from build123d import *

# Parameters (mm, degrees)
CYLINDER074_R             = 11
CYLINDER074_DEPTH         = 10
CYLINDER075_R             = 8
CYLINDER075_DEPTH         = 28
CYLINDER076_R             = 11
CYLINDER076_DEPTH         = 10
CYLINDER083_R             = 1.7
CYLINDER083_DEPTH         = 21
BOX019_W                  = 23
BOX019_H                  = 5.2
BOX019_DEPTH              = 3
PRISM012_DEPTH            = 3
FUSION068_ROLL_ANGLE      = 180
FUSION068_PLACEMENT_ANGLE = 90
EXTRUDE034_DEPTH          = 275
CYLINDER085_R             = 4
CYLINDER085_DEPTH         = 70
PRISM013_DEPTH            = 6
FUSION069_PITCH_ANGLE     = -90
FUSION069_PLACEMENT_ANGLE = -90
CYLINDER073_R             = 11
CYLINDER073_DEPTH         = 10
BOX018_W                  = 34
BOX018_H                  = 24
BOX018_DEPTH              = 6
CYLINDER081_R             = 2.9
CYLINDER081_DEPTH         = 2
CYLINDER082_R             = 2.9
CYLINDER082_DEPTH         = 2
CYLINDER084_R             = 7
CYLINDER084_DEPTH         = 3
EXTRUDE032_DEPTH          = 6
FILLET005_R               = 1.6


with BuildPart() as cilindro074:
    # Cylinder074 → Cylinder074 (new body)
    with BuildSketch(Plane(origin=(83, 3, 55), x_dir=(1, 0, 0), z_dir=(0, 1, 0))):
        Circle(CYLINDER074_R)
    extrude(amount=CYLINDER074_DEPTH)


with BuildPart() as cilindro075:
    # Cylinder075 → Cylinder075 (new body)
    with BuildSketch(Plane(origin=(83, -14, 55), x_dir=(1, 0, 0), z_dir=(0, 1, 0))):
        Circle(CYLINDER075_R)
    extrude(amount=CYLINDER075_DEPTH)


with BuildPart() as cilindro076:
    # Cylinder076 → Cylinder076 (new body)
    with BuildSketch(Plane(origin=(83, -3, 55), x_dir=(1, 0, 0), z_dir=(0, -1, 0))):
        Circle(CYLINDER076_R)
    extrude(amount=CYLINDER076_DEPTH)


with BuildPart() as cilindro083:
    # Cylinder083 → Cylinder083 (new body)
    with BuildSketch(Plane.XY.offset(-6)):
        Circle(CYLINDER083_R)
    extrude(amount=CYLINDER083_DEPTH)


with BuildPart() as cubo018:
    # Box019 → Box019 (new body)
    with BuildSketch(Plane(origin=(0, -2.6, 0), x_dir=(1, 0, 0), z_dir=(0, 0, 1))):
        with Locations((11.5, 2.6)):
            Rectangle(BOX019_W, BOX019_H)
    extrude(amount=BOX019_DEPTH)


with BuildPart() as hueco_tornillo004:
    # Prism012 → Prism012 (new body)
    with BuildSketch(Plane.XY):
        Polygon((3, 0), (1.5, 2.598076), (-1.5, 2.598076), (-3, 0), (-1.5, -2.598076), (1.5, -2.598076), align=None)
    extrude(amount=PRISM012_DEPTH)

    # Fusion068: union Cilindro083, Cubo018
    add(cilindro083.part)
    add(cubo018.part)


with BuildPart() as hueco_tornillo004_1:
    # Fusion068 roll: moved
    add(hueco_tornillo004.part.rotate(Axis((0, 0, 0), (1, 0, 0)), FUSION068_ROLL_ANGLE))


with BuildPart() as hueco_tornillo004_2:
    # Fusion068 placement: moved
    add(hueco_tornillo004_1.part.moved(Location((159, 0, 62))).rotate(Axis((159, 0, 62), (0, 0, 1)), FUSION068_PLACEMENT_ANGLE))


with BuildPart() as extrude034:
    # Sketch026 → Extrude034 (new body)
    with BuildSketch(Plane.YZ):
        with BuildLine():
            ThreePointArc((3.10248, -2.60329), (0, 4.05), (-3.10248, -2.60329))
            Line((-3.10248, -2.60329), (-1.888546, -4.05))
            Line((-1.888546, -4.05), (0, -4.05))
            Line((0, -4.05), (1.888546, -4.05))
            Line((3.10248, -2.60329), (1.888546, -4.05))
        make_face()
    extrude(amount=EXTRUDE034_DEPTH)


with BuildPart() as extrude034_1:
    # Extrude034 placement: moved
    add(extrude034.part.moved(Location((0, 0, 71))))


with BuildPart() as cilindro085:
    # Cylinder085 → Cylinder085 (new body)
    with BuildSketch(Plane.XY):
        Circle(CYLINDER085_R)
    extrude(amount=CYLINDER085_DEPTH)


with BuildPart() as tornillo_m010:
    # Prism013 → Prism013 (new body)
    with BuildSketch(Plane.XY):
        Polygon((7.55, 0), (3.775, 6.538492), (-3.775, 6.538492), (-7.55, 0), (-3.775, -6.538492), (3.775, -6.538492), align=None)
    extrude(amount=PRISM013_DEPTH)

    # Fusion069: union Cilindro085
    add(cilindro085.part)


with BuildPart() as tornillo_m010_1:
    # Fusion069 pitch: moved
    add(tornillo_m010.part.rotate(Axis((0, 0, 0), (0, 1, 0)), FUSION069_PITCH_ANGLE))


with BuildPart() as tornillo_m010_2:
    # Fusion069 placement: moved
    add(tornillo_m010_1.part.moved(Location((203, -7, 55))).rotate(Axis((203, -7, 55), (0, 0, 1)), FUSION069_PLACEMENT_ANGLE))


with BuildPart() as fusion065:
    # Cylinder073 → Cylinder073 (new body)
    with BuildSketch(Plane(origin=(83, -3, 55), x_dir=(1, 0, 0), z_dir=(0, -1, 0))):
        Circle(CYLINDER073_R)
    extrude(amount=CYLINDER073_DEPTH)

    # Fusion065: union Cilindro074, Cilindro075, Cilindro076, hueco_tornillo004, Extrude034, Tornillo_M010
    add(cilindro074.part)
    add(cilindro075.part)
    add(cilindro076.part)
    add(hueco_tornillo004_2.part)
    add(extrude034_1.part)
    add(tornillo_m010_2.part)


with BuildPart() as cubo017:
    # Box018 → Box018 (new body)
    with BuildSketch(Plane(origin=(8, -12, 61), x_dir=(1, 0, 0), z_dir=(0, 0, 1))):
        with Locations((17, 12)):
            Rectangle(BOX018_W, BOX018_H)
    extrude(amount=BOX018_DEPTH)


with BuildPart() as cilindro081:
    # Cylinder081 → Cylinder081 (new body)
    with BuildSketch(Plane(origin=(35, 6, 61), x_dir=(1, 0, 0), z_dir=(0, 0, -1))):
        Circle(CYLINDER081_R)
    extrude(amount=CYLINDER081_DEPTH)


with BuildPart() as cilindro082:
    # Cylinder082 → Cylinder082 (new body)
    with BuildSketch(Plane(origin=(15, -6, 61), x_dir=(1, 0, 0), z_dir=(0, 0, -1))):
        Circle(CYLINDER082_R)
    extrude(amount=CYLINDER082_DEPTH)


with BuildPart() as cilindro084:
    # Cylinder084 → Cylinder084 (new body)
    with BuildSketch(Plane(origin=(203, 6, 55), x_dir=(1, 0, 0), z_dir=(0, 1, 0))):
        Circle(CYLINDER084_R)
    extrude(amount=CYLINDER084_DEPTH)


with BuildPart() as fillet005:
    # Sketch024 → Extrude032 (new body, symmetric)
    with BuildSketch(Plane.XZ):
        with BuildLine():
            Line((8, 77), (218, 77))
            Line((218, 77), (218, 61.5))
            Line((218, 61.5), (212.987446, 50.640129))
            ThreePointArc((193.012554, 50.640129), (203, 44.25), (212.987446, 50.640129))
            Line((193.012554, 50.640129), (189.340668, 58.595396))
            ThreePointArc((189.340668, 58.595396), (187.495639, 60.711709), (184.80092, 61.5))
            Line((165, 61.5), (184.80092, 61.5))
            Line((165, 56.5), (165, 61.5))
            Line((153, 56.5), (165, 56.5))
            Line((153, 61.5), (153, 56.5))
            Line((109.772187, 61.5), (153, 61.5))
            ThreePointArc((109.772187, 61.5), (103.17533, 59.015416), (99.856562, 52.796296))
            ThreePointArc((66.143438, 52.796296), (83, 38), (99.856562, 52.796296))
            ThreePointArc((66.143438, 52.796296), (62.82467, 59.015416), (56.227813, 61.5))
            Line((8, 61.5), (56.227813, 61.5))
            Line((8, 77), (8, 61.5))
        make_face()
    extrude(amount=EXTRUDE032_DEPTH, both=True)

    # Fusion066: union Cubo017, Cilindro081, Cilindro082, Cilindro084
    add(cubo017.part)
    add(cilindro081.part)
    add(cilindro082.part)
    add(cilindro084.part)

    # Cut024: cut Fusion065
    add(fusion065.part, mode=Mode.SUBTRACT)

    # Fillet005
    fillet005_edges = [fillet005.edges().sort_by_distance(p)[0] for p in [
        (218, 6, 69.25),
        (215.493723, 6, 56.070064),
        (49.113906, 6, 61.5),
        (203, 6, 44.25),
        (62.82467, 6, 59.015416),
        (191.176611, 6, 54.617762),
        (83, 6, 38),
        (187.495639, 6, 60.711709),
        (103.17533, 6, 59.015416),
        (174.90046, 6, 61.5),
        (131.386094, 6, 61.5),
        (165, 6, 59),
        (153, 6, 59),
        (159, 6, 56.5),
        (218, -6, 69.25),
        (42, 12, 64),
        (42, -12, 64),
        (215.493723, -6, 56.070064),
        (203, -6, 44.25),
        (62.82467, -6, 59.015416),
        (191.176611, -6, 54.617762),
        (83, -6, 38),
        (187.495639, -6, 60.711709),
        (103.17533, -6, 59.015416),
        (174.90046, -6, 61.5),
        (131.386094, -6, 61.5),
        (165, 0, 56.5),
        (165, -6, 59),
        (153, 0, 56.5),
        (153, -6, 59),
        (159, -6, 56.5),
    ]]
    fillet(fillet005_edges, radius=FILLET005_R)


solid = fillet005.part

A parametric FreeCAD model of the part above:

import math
import FreeCAD as App
import Part
import Sketcher
from FreeCAD import Vector
Q = App.Units.Quantity


def edges_at(feature, points):
    """Names of the edges that pass closest to the given points."""
    edges = feature.Shape.Edges
    near = lambda p: min(range(len(edges)), key=lambda i: edges[i].distToShape(Part.Vertex(*p))[0])
    return sorted({f"Edge{near(p) + 1}" for p in points})

doc = App.newDocument("Part")
body = doc.addObject("PartDesign::Body", "Body")

# Sketch on XZ plane
sketch1 = doc.addObject("Sketcher::SketchObject", "Sketch")
body.addObject(sketch1)
sketch1.AttachmentSupport = (doc.XZ_Plane, [""])
sketch1.MapMode = "FlatFace"
sketch1.AttachmentOffset = App.Placement(Vector(0, 0, -3), App.Rotation())
sketch1.addGeometry(Part.Circle(Vector(83, 55, 0), Vector(0, 0, 1), 11), False)
sketch1.addConstraint([
    Sketcher.Constraint("Diameter", 0, 22.0),
    Sketcher.Constraint("DistanceX", -1, 1, 0, 3, 83.0),
    Sketcher.Constraint("DistanceY", -1, 1, 0, 3, 55.0),
])
pad1 = doc.addObject("PartDesign::Pad", "Pad")
body.addObject(pad1)
pad1.Profile = sketch1
pad1.Length = 10
pad1.Reversed = True
body2 = doc.addObject("PartDesign::Body", "Body001")

# Sketch on XZ plane
sketch2 = doc.addObject("Sketcher::SketchObject", "Sketch001")
body2.addObject(sketch2)
sketch2.AttachmentSupport = (doc.getObject("XZ_Plane001"), [""])
sketch2.MapMode = "FlatFace"
sketch2.AttachmentOffset = App.Placement(Vector(0, 0, 14), App.Rotation())
sketch2.addGeometry(Part.Circle(Vector(83, 55, 0), Vector(0, 0, 1), 8), False)
sketch2.addConstraint([
    Sketcher.Constraint("Diameter", 0, 16.0),
    Sketcher.Constraint("DistanceX", -1, 1, 0, 3, 83.0),
    Sketcher.Constraint("DistanceY", -1, 1, 0, 3, 55.0),
])
pad2 = doc.addObject("PartDesign::Pad", "Pad001")
body2.addObject(pad2)
pad2.Profile = sketch2
pad2.Length = 28
pad2.Reversed = True
body3 = doc.addObject("PartDesign::Body", "Body002")

# Sketch on XZ plane
sketch3 = doc.addObject("Sketcher::SketchObject", "Sketch002")
body3.addObject(sketch3)
sketch3.AttachmentSupport = (doc.getObject("XZ_Plane002"), [""])
sketch3.MapMode = "FlatFace"
sketch3.AttachmentOffset = App.Placement(Vector(0, 0, 3), App.Rotation())
sketch3.addGeometry(Part.Circle(Vector(83, 55, 0), Vector(0, 0, 1), 11), False)
sketch3.addConstraint([
    Sketcher.Constraint("Diameter", 0, 22.0),
    Sketcher.Constraint("DistanceX", -1, 1, 0, 3, 83.0),
    Sketcher.Constraint("DistanceY", -1, 1, 0, 3, 55.0),
])
pad3 = doc.addObject("PartDesign::Pad", "Pad002")
body3.addObject(pad3)
pad3.Profile = sketch3
pad3.Length = 10
body4 = doc.addObject("PartDesign::Body", "Body003")

# Sketch on XY plane
sketch4 = doc.addObject("Sketcher::SketchObject", "Sketch003")
body4.addObject(sketch4)
sketch4.AttachmentSupport = (doc.getObject("XY_Plane003"), [""])
sketch4.MapMode = "FlatFace"
sketch4.AttachmentOffset = App.Placement(Vector(0, 0, -6), App.Rotation())
sketch4.addGeometry(Part.Circle(Vector(0, 0, 0), Vector(0, 0, 1), 1.7), False)
sketch4.addConstraint([
    Sketcher.Constraint("Coincident", 0, 3, -1, 1),
    Sketcher.Constraint("Diameter", 0, 3.4),
])
pad4 = doc.addObject("PartDesign::Pad", "Pad003")
body4.addObject(pad4)
pad4.Profile = sketch4
pad4.Length = 21
body5 = doc.addObject("PartDesign::Body", "Body004")

# Sketch on XY plane
sketch5 = doc.addObject("Sketcher::SketchObject", "Sketch004")
body5.addObject(sketch5)
sketch5.AttachmentSupport = (doc.getObject("XY_Plane004"), [""])
sketch5.MapMode = "FlatFace"
sketch5.addGeometry([
    Part.LineSegment(Vector(0, 2.6, 0), Vector(0, -2.6, 0)),
    Part.LineSegment(Vector(0, -2.6, 0), Vector(23, -2.6, 0)),
    Part.LineSegment(Vector(23, -2.6, 0), Vector(23, 2.6, 0)),
    Part.LineSegment(Vector(23, 2.6, 0), Vector(0, 2.6, 0)),
], False)
sketch5.addConstraint([
    Sketcher.Constraint("Coincident", 0, 2, 1, 1),
    Sketcher.Constraint("Coincident", 1, 2, 2, 1),
    Sketcher.Constraint("Coincident", 2, 2, 3, 1),
    Sketcher.Constraint("Coincident", 3, 2, 0, 1),
    Sketcher.Constraint("Vertical", 0),
    Sketcher.Constraint("Horizontal", 1),
    Sketcher.Constraint("Vertical", 2),
    Sketcher.Constraint("Horizontal", 3),
    Sketcher.Constraint("Symmetric", 0, 2, 3, 2, -1, 1),
    Sketcher.Constraint("DistanceX", 1, 1, 1, 2, 23.0),
    Sketcher.Constraint("DistanceY", 0, 2, 0, 1, 5.2),
])
pad5 = doc.addObject("PartDesign::Pad", "Pad004")
body5.addObject(pad5)
pad5.Profile = sketch5
pad5.Length = 3
body6 = doc.addObject("PartDesign::Body", "Body005")

# Sketch on XY plane
sketch6 = doc.addObject("Sketcher::SketchObject", "Sketch005")
body6.addObject(sketch6)
sketch6.AttachmentSupport = (doc.getObject("XY_Plane005"), [""])
sketch6.MapMode = "FlatFace"
sketch6.addGeometry([
    Part.LineSegment(Vector(3, 0, 0), Vector(1.5, 2.598076, 0)),  # 0
    Part.LineSegment(Vector(1.5, 2.598076, 0), Vector(-1.5, 2.598076, 0)),  # 1
    Part.LineSegment(Vector(-1.5, 2.598076, 0), Vector(-3, 0, 0)),  # 2
    Part.LineSegment(Vector(-3, 0, 0), Vector(-1.5, -2.598076, 0)),  # 3
    Part.LineSegment(Vector(-1.5, -2.598076, 0), Vector(1.5, -2.598076, 0)),  # 4
    Part.LineSegment(Vector(1.5, -2.598076, 0), Vector(3, 0, 0)),  # 5
], False)
sketch6.addConstraint([
    Sketcher.Constraint("Coincident", 0, 2, 1, 1),
    Sketcher.Constraint("Coincident", 1, 2, 2, 1),
    Sketcher.Constraint("Coincident", 2, 2, 3, 1),
    Sketcher.Constraint("Coincident", 3, 2, 4, 1),
    Sketcher.Constraint("Coincident", 4, 2, 5, 1),
    Sketcher.Constraint("Coincident", 5, 2, 0, 1),
    Sketcher.Constraint("Horizontal", 1),
    Sketcher.Constraint("Horizontal", 4),
    Sketcher.Constraint("Symmetric", 0, 2, 3, 2, -1, 1),
    Sketcher.Constraint("Symmetric", 2, 2, 5, 2, -1, 1),
    Sketcher.Constraint("PointOnObject", 2, 2, -1),
    Sketcher.Constraint("Parallel", 2, 5),
    Sketcher.Constraint("Vertical", 1, 2, 3, 2),
    Sketcher.Constraint("DistanceX", 1, 2, 1, 1, 3.0),
    Sketcher.Constraint("Angle", 0, Q("120.000002 deg")),
    Sketcher.Constraint("Distance", 0, 3.0),
])
pad6 = doc.addObject("PartDesign::Pad", "Pad005")
body6.addObject(pad6)
pad6.Profile = sketch6
pad6.Length = 3
doc.recompute()

boolean = doc.addObject("PartDesign::Boolean", "Boolean")
body6.addObject(boolean)
boolean.Type = "Fuse"
boolean.addObjects([body4])
doc.recompute()

boolean2 = doc.addObject("PartDesign::Boolean", "Boolean001")
body6.addObject(boolean2)
boolean2.Type = "Fuse"
boolean2.addObjects([body5])
body7 = doc.addObject("PartDesign::Body", "Body006")
doc.recompute()

body6.Placement = App.Placement(Vector(0, 0, 0), App.Rotation(Vector(1, 0, 0), 180))
boolean3 = doc.addObject("PartDesign::Boolean", "Boolean002")
body7.addObject(boolean3)
boolean3.Type = "Fuse"
boolean3.addObjects([body6])
body8 = doc.addObject("PartDesign::Body", "Body007")
doc.recompute()

body7.Placement = App.Placement(Vector(159, 0, 62), App.Rotation(Vector(0, 0, 1), 90))
boolean4 = doc.addObject("PartDesign::Boolean", "Boolean003")
body8.addObject(boolean4)
boolean4.Type = "Fuse"
boolean4.addObjects([body7])
body9 = doc.addObject("PartDesign::Body", "Body008")

# Sketch on YZ plane
sketch7 = doc.addObject("Sketcher::SketchObject", "Sketch006")
body9.addObject(sketch7)
sketch7.AttachmentSupport = (doc.getObject("YZ_Plane008"), [""])
sketch7.MapMode = "FlatFace"
sketch7.addGeometry([
    Part.ArcOfCircle(Part.Circle(Vector(0, 0, 0), Vector(0, 0, 1), 4.05), math.radians(-40.000001), math.radians(220.000001)),
    Part.LineSegment(Vector(-3.10248, -2.60329, 0), Vector(-1.888546, -4.05, 0)),
    Part.LineSegment(Vector(-1.888546, -4.05, 0), Vector(1.888546, -4.05, 0)),
    Part.LineSegment(Vector(1.888546, -4.05, 0), Vector(3.10248, -2.60329, 0)),
], False)
sketch7.addConstraint([
    Sketcher.Constraint("Tangent", 0, 2, 1, 1),
    Sketcher.Constraint("Coincident", 1, 2, 2, 1),
    Sketcher.Constraint("Coincident", 2, 2, 3, 1),
    Sketcher.Constraint("Tangent", 3, 2, 0, 1),
    Sketcher.Constraint("Horizontal", 2),
    Sketcher.Constraint("Coincident", 0, 3, -1, 1),
    Sketcher.Constraint("Horizontal", 0, 2, 3, 2),
    Sketcher.Constraint("Angle", 1, Q("-49.999996 deg")),
    Sketcher.Constraint("Radius", 0, 4.05),
    Sketcher.Constraint("DistanceY", 1, 2, -1, 1, 4.05),
])
pad7 = doc.addObject("PartDesign::Pad", "Pad006")
body9.addObject(pad7)
pad7.Profile = sketch7
pad7.Length = 275
body10 = doc.addObject("PartDesign::Body", "Body009")
doc.recompute()

body9.Placement = App.Placement(Vector(0, 0, 71), App.Rotation(Vector(0, 0, 1), 0))
boolean5 = doc.addObject("PartDesign::Boolean", "Boolean004")
body10.addObject(boolean5)
boolean5.Type = "Fuse"
boolean5.addObjects([body9])
body11 = doc.addObject("PartDesign::Body", "Body010")

# Sketch on XY plane
sketch8 = doc.addObject("Sketcher::SketchObject", "Sketch007")
body11.addObject(sketch8)
sketch8.AttachmentSupport = (doc.getObject("XY_Plane010"), [""])
sketch8.MapMode = "FlatFace"
sketch8.addGeometry(Part.Circle(Vector(0, 0, 0), Vector(0, 0, 1), 4), False)
sketch8.addConstraint([
    Sketcher.Constraint("Coincident", 0, 3, -1, 1),
    Sketcher.Constraint("Diameter", 0, 8.0),
])
pad8 = doc.addObject("PartDesign::Pad", "Pad007")
body11.addObject(pad8)
pad8.Profile = sketch8
pad8.Length = 70
body12 = doc.addObject("PartDesign::Body", "Body011")

# Sketch on XY plane
sketch9 = doc.addObject("Sketcher::SketchObject", "Sketch008")
body12.addObject(sketch9)
sketch9.AttachmentSupport = (doc.getObject("XY_Plane011"), [""])
sketch9.MapMode = "FlatFace"
sketch9.addGeometry([
    Part.LineSegment(Vector(7.55, 0, 0), Vector(3.775, 6.538492, 0)),  # 0
    Part.LineSegment(Vector(3.775, 6.538492, 0), Vector(-3.775, 6.538492, 0)),  # 1
    Part.LineSegment(Vector(-3.775, 6.538492, 0), Vector(-7.55, 0, 0)),  # 2
    Part.LineSegment(Vector(-7.55, 0, 0), Vector(-3.775, -6.538492, 0)),  # 3
    Part.LineSegment(Vector(-3.775, -6.538492, 0), Vector(3.775, -6.538492, 0)),  # 4
    Part.LineSegment(Vector(3.775, -6.538492, 0), Vector(7.55, 0, 0)),  # 5
], False)
sketch9.addConstraint([
    Sketcher.Constraint("Coincident", 0, 2, 1, 1),
    Sketcher.Constraint("Coincident", 1, 2, 2, 1),
    Sketcher.Constraint("Coincident", 2, 2, 3, 1),
    Sketcher.Constraint("Coincident", 3, 2, 4, 1),
    Sketcher.Constraint("Coincident", 4, 2, 5, 1),
    Sketcher.Constraint("Coincident", 5, 2, 0, 1),
    Sketcher.Constraint("Horizontal", 1),
    Sketcher.Constraint("Horizontal", 4),
    Sketcher.Constraint("Symmetric", 0, 2, 3, 2, -1, 1),
    Sketcher.Constraint("Symmetric", 2, 2, 5, 2, -1, 1),
    Sketcher.Constraint("PointOnObject", 2, 2, -1),
    Sketcher.Constraint("Parallel", 2, 5),
    Sketcher.Constraint("Vertical", 1, 2, 3, 2),
    Sketcher.Constraint("Angle", 0, Q("119.999999 deg")),
    Sketcher.Constraint("DistanceX", 1, 2, 1, 1, 7.55),
    Sketcher.Constraint("DistanceX", 2, 2, 5, 2, 15.1),
])
pad9 = doc.addObject("PartDesign::Pad", "Pad008")
body12.addObject(pad9)
pad9.Profile = sketch9
pad9.Length = 6
doc.recompute()

boolean6 = doc.addObject("PartDesign::Boolean", "Boolean005")
body12.addObject(boolean6)
boolean6.Type = "Fuse"
boolean6.addObjects([body11])
body13 = doc.addObject("PartDesign::Body", "Body012")
doc.recompute()

body12.Placement = App.Placement(Vector(0, 0, 0), App.Rotation(Vector(0, 1, 0), 270))
boolean7 = doc.addObject("PartDesign::Boolean", "Boolean006")
body13.addObject(boolean7)
boolean7.Type = "Fuse"
boolean7.addObjects([body12])
body14 = doc.addObject("PartDesign::Body", "Body013")
doc.recompute()

body13.Placement = App.Placement(Vector(203, -7, 55), App.Rotation(Vector(0, 0, 1), 270))
boolean8 = doc.addObject("PartDesign::Boolean", "Boolean007")
body14.addObject(boolean8)
boolean8.Type = "Fuse"
boolean8.addObjects([body13])
body15 = doc.addObject("PartDesign::Body", "Body014")
body15.AllowCompound = True

# Sketch on XZ plane
sketch10 = doc.addObject("Sketcher::SketchObject", "Sketch009")
body15.addObject(sketch10)
sketch10.AttachmentSupport = (doc.getObject("XZ_Plane014"), [""])
sketch10.MapMode = "FlatFace"
sketch10.AttachmentOffset = App.Placement(Vector(0, 0, 3), App.Rotation())
sketch10.addGeometry(Part.Circle(Vector(83, 55, 0), Vector(0, 0, 1), 11), False)
sketch10.addConstraint([
    Sketcher.Constraint("Diameter", 0, 22.0),
    Sketcher.Constraint("DistanceX", -1, 1, 0, 3, 83.0),
    Sketcher.Constraint("DistanceY", -1, 1, 0, 3, 55.0),
])
pad10 = doc.addObject("PartDesign::Pad", "Pad009")
body15.addObject(pad10)
pad10.Profile = sketch10
pad10.Length = 10
doc.recompute()

boolean9 = doc.addObject("PartDesign::Boolean", "Boolean008")
body15.addObject(boolean9)
boolean9.Type = "Fuse"
boolean9.addObjects([body])
doc.recompute()

boolean10 = doc.addObject("PartDesign::Boolean", "Boolean009")
body15.addObject(boolean10)
boolean10.Type = "Fuse"
boolean10.addObjects([body2])
doc.recompute()

boolean11 = doc.addObject("PartDesign::Boolean", "Boolean010")
body15.addObject(boolean11)
boolean11.Type = "Fuse"
boolean11.addObjects([body3])
doc.recompute()

boolean12 = doc.addObject("PartDesign::Boolean", "Boolean011")
body15.addObject(boolean12)
boolean12.Type = "Fuse"
boolean12.addObjects([body8])
doc.recompute()

boolean13 = doc.addObject("PartDesign::Boolean", "Boolean012")
body15.addObject(boolean13)
boolean13.Type = "Fuse"
boolean13.addObjects([body10])
doc.recompute()

boolean14 = doc.addObject("PartDesign::Boolean", "Boolean013")
body15.addObject(boolean14)
boolean14.Type = "Fuse"
boolean14.addObjects([body14])
body16 = doc.addObject("PartDesign::Body", "Body015")

# Sketch on XY plane
sketch11 = doc.addObject("Sketcher::SketchObject", "Sketch010")
body16.addObject(sketch11)
sketch11.AttachmentSupport = (doc.getObject("XY_Plane015"), [""])
sketch11.MapMode = "FlatFace"
sketch11.AttachmentOffset = App.Placement(Vector(0, 0, 61), App.Rotation())
sketch11.addGeometry([
    Part.LineSegment(Vector(8, 12, 0), Vector(8, -12, 0)),
    Part.LineSegment(Vector(8, -12, 0), Vector(42, -12, 0)),
    Part.LineSegment(Vector(42, -12, 0), Vector(42, 12, 0)),
    Part.LineSegment(Vector(42, 12, 0), Vector(8, 12, 0)),
], False)
sketch11.addConstraint([
    Sketcher.Constraint("Coincident", 0, 2, 1, 1),
    Sketcher.Constraint("Coincident", 1, 2, 2, 1),
    Sketcher.Constraint("Coincident", 2, 2, 3, 1),
    Sketcher.Constraint("Coincident", 3, 2, 0, 1),
    Sketcher.Constraint("Vertical", 0),
    Sketcher.Constraint("Horizontal", 1),
    Sketcher.Constraint("Vertical", 2),
    Sketcher.Constraint("Horizontal", 3),
    Sketcher.Constraint("DistanceX", 1, 1, 1, 2, 34.0),
    Sketcher.Constraint("DistanceY", 0, 2, 0, 1, 24.0),
    Sketcher.Constraint("DistanceX", -1, 1, 0, 2, 8.0),
    Sketcher.Constraint("DistanceY", 0, 2, -1, 1, 12.0),
])
pad11 = doc.addObject("PartDesign::Pad", "Pad010")
body16.addObject(pad11)
pad11.Profile = sketch11
pad11.Length = 6
body17 = doc.addObject("PartDesign::Body", "Body016")

# Sketch on XY plane
sketch12 = doc.addObject("Sketcher::SketchObject", "Sketch011")
body17.addObject(sketch12)
sketch12.AttachmentSupport = (doc.getObject("XY_Plane016"), [""])
sketch12.MapMode = "FlatFace"
sketch12.AttachmentOffset = App.Placement(Vector(0, 0, 61), App.Rotation())
sketch12.addGeometry(Part.Circle(Vector(35, 6, 0), Vector(0, 0, 1), 2.9), False)
sketch12.addConstraint([
    Sketcher.Constraint("Diameter", 0, 5.8),
    Sketcher.Constraint("DistanceX", -1, 1, 0, 3, 35.0),
    Sketcher.Constraint("DistanceY", -1, 1, 0, 3, 6.0),
])
pad12 = doc.addObject("PartDesign::Pad", "Pad011")
body17.addObject(pad12)
pad12.Profile = sketch12
pad12.Length = 2
pad12.Reversed = True
body18 = doc.addObject("PartDesign::Body", "Body017")

# Sketch on XY plane
sketch13 = doc.addObject("Sketcher::SketchObject", "Sketch012")
body18.addObject(sketch13)
sketch13.AttachmentSupport = (doc.getObject("XY_Plane017"), [""])
sketch13.MapMode = "FlatFace"
sketch13.AttachmentOffset = App.Placement(Vector(0, 0, 61), App.Rotation())
sketch13.addGeometry(Part.Circle(Vector(15, -6, 0), Vector(0, 0, 1), 2.9), False)
sketch13.addConstraint([
    Sketcher.Constraint("Diameter", 0, 5.8),
    Sketcher.Constraint("DistanceX", -1, 1, 0, 3, 15.0),
    Sketcher.Constraint("DistanceY", 0, 3, -1, 1, 6.0),
])
pad13 = doc.addObject("PartDesign::Pad", "Pad012")
body18.addObject(pad13)
pad13.Profile = sketch13
pad13.Length = 2
pad13.Reversed = True
body19 = doc.addObject("PartDesign::Body", "Body018")

# Sketch on XZ plane
sketch14 = doc.addObject("Sketcher::SketchObject", "Sketch013")
body19.addObject(sketch14)
sketch14.AttachmentSupport = (doc.getObject("XZ_Plane018"), [""])
sketch14.MapMode = "FlatFace"
sketch14.AttachmentOffset = App.Placement(Vector(0, 0, -6), App.Rotation())
sketch14.addGeometry(Part.Circle(Vector(203, 55, 0), Vector(0, 0, 1), 7), False)
sketch14.addConstraint([
    Sketcher.Constraint("Diameter", 0, 14.0),
    Sketcher.Constraint("DistanceX", -1, 1, 0, 3, 203.0),
    Sketcher.Constraint("DistanceY", -1, 1, 0, 3, 55.0),
])
pad14 = doc.addObject("PartDesign::Pad", "Pad013")
body19.addObject(pad14)
pad14.Profile = sketch14
pad14.Length = 3
pad14.Reversed = True
body20 = doc.addObject("PartDesign::Body", "Body019")

# Sketch on XZ plane
sketch15 = doc.addObject("Sketcher::SketchObject", "Sketch014")
body20.addObject(sketch15)
sketch15.AttachmentSupport = (doc.getObject("XZ_Plane019"), [""])
sketch15.MapMode = "FlatFace"
sketch15.addGeometry([
    Part.LineSegment(Vector(218, 77, 0), Vector(8, 77, 0)),  # 0
    Part.LineSegment(Vector(8, 77, 0), Vector(8, 61.5, 0)),  # 1
    Part.LineSegment(Vector(8, 61.5, 0), Vector(56.227813, 61.5, 0)),  # 2
    Part.ArcOfCircle(Part.Circle(Vector(56.227813, 51.5, 0), Vector(0, 0, 1), 10), math.radians(7.44819), math.radians(89.999999)),  # 3
    Part.ArcOfCircle(Part.Circle(Vector(83, 55, 0), Vector(0, 0, 1), 17), math.radians(-172.551809), math.radians(-7.448191)),  # 4
    Part.ArcOfCircle(Part.Circle(Vector(109.772187, 51.5, 0), Vector(0, 0, 1), 10), math.radians(90.000001), math.radians(172.55181)),  # 5
    Part.LineSegment(Vector(109.772187, 61.5, 0), Vector(153, 61.5, 0)),  # 6
    Part.LineSegment(Vector(153, 61.5, 0), Vector(153, 56.5, 0)),  # 7
    Part.LineSegment(Vector(153, 56.5, 0), Vector(165, 56.5, 0)),  # 8
    Part.LineSegment(Vector(165, 56.5, 0), Vector(165, 61.5, 0)),  # 9
    Part.LineSegment(Vector(165, 61.5, 0), Vector(184.80092, 61.5, 0)),  # 10
    Part.ArcOfCircle(Part.Circle(Vector(184.800921, 56.500003, 0), Vector(0, 0, 1), 4.999997), math.radians(24.776446), math.radians(90.000016)),  # 11
    Part.LineSegment(Vector(189.340668, 58.595396, 0), Vector(193.012554, 50.640129, 0)),  # 12
    Part.ArcOfCircle(Part.Circle(Vector(203, 55.249999, 0), Vector(0, 0, 1), 10.999999), math.radians(-155.223537), math.radians(-24.776463)),  # 13
    Part.LineSegment(Vector(212.987446, 50.640129, 0), Vector(218, 61.5, 0)),  # 14
    Part.LineSegment(Vector(218, 61.5, 0), Vector(218, 77, 0)),  # 15
], False)
sketch15.addConstraint([
    Sketcher.Constraint("Coincident", 0, 2, 1, 1),
    Sketcher.Constraint("Coincident", 1, 2, 2, 1),
    Sketcher.Constraint("Tangent", 2, 2, 3, 2),
    Sketcher.Constraint("Tangent", 3, 1, 4, 1),
    Sketcher.Constraint("Tangent", 4, 2, 5, 2),
    Sketcher.Constraint("Tangent", 5, 1, 6, 1),
    Sketcher.Constraint("Coincident", 6, 2, 7, 1),
    Sketcher.Constraint("Coincident", 7, 2, 8, 1),
    Sketcher.Constraint("Coincident", 8, 2, 9, 1),
    Sketcher.Constraint("Coincident", 9, 2, 10, 1),
    Sketcher.Constraint("Tangent", 10, 2, 11, 2),
    Sketcher.Constraint("Tangent", 11, 1, 12, 1),
    Sketcher.Constraint("Tangent", 12, 2, 13, 1),
    Sketcher.Constraint("Tangent", 13, 2, 14, 1),
    Sketcher.Constraint("Coincident", 14, 2, 15, 1),
    Sketcher.Constraint("Coincident", 15, 2, 0, 1),
    Sketcher.Constraint("Horizontal", 0),
    Sketcher.Constraint("Vertical", 1),
    Sketcher.Constraint("Horizontal", 2),
    Sketcher.Constraint("Horizontal", 6),
    Sketcher.Constraint("Vertical", 7),
    Sketcher.Constraint("Horizontal", 8),
    Sketcher.Constraint("Vertical", 9),
    Sketcher.Constraint("Horizontal", 10),
    Sketcher.Constraint("Vertical", 15),
    Sketcher.Constraint("Equal", 3, 5),
    Sketcher.Constraint("Horizontal", 3, 3, 5, 3),
    Sketcher.Constraint("Horizontal", 6, 2, 9, 2),
    Sketcher.Constraint("Horizontal", 12, 2, 13, 2),
    Sketcher.Constraint("Horizontal", 10, 2, 14, 2),
    Sketcher.Constraint("Radius", 3, 10.0),
    Sketcher.Constraint("Radius", 4, 17.0),
    Sketcher.Constraint("Radius", 13, 10.999999),
    Sketcher.Constraint("DistanceX", 0, 2, 0, 1, 210.0),
    Sketcher.Constraint("DistanceX", 8, 1, 8, 2, 12.0),
    Sketcher.Constraint("DistanceY", 7, 2, 7, 1, 5.0),
    Sketcher.Constraint("DistanceY", 1, 2, 1, 1, 15.5),
    Sketcher.Constraint("DistanceX", -1, 1, 4, 3, 83.0),
    Sketcher.Constraint("DistanceY", -1, 1, 4, 3, 55.0),
    Sketcher.Constraint("DistanceX", -1, 1, 13, 3, 203.0),
    Sketcher.Constraint("DistanceX", -1, 1, 0, 2, 8.0),
    Sketcher.Constraint("DistanceY", -1, 1, 0, 2, 77.0),
    Sketcher.Constraint("DistanceX", -1, 1, 6, 2, 153.0),
    Sketcher.Constraint("DistanceY", -1, 1, 13, 3, 55.249999),
    Sketcher.Constraint("Radius", 11, 4.999997),
])
pad15 = doc.addObject("PartDesign::Pad", "Pad014")
body20.addObject(pad15)
pad15.Profile = sketch15
pad15.Length = 12
pad15.Midplane = True
doc.recompute()

boolean15 = doc.addObject("PartDesign::Boolean", "Boolean014")
body20.addObject(boolean15)
boolean15.Type = "Fuse"
boolean15.addObjects([body16])
doc.recompute()

boolean16 = doc.addObject("PartDesign::Boolean", "Boolean015")
body20.addObject(boolean16)
boolean16.Type = "Fuse"
boolean16.addObjects([body17])
doc.recompute()

boolean17 = doc.addObject("PartDesign::Boolean", "Boolean016")
body20.addObject(boolean17)
boolean17.Type = "Fuse"
boolean17.addObjects([body18])
doc.recompute()

boolean18 = doc.addObject("PartDesign::Boolean", "Boolean017")
body20.addObject(boolean18)
boolean18.Type = "Fuse"
boolean18.addObjects([body19])
doc.recompute()

boolean19 = doc.addObject("PartDesign::Boolean", "Boolean018")
body20.addObject(boolean19)
boolean19.Type = "Cut"
boolean19.addObjects([body15])
doc.recompute()

fillet = doc.addObject("PartDesign::Fillet", "Fillet")
body20.addObject(fillet)
fillet.Base = (boolean19, edges_at(boolean19, [
    (218, 6, 69.25),
    (215.494, 6, 56.07),
    (49.114, 6, 61.5),
    (203, 6, 44.25),
    (62.825, 6, 59.015),
    (191.177, 6, 54.618),
    (83, 6, 38),
    (187.496, 6, 60.712),
    (103.175, 6, 59.015),
    (174.9, 6, 61.5),
    (131.386, 6, 61.5),
    (165, 6, 59),
    (153, 6, 59),
    (159, 6, 56.5),
    (218, -6, 69.25),
    (42, 12, 64),
    (42, -12, 64),
    (215.494, -6, 56.07),
    (203, -6, 44.25),
    (62.825, -6, 59.015),
    (191.177, -6, 54.618),
    (83, -6, 38),
    (187.496, -6, 60.712),
    (103.175, -6, 59.015),
    (174.9, -6, 61.5),
    (131.386, -6, 61.5),
    (165, 0, 56.5),
    (165, -6, 59),
    (153, 0, 56.5),
    (153, -6, 59),
    (159, -6, 56.5),
]))
fillet.Radius = 1.6

doc.recompute()
